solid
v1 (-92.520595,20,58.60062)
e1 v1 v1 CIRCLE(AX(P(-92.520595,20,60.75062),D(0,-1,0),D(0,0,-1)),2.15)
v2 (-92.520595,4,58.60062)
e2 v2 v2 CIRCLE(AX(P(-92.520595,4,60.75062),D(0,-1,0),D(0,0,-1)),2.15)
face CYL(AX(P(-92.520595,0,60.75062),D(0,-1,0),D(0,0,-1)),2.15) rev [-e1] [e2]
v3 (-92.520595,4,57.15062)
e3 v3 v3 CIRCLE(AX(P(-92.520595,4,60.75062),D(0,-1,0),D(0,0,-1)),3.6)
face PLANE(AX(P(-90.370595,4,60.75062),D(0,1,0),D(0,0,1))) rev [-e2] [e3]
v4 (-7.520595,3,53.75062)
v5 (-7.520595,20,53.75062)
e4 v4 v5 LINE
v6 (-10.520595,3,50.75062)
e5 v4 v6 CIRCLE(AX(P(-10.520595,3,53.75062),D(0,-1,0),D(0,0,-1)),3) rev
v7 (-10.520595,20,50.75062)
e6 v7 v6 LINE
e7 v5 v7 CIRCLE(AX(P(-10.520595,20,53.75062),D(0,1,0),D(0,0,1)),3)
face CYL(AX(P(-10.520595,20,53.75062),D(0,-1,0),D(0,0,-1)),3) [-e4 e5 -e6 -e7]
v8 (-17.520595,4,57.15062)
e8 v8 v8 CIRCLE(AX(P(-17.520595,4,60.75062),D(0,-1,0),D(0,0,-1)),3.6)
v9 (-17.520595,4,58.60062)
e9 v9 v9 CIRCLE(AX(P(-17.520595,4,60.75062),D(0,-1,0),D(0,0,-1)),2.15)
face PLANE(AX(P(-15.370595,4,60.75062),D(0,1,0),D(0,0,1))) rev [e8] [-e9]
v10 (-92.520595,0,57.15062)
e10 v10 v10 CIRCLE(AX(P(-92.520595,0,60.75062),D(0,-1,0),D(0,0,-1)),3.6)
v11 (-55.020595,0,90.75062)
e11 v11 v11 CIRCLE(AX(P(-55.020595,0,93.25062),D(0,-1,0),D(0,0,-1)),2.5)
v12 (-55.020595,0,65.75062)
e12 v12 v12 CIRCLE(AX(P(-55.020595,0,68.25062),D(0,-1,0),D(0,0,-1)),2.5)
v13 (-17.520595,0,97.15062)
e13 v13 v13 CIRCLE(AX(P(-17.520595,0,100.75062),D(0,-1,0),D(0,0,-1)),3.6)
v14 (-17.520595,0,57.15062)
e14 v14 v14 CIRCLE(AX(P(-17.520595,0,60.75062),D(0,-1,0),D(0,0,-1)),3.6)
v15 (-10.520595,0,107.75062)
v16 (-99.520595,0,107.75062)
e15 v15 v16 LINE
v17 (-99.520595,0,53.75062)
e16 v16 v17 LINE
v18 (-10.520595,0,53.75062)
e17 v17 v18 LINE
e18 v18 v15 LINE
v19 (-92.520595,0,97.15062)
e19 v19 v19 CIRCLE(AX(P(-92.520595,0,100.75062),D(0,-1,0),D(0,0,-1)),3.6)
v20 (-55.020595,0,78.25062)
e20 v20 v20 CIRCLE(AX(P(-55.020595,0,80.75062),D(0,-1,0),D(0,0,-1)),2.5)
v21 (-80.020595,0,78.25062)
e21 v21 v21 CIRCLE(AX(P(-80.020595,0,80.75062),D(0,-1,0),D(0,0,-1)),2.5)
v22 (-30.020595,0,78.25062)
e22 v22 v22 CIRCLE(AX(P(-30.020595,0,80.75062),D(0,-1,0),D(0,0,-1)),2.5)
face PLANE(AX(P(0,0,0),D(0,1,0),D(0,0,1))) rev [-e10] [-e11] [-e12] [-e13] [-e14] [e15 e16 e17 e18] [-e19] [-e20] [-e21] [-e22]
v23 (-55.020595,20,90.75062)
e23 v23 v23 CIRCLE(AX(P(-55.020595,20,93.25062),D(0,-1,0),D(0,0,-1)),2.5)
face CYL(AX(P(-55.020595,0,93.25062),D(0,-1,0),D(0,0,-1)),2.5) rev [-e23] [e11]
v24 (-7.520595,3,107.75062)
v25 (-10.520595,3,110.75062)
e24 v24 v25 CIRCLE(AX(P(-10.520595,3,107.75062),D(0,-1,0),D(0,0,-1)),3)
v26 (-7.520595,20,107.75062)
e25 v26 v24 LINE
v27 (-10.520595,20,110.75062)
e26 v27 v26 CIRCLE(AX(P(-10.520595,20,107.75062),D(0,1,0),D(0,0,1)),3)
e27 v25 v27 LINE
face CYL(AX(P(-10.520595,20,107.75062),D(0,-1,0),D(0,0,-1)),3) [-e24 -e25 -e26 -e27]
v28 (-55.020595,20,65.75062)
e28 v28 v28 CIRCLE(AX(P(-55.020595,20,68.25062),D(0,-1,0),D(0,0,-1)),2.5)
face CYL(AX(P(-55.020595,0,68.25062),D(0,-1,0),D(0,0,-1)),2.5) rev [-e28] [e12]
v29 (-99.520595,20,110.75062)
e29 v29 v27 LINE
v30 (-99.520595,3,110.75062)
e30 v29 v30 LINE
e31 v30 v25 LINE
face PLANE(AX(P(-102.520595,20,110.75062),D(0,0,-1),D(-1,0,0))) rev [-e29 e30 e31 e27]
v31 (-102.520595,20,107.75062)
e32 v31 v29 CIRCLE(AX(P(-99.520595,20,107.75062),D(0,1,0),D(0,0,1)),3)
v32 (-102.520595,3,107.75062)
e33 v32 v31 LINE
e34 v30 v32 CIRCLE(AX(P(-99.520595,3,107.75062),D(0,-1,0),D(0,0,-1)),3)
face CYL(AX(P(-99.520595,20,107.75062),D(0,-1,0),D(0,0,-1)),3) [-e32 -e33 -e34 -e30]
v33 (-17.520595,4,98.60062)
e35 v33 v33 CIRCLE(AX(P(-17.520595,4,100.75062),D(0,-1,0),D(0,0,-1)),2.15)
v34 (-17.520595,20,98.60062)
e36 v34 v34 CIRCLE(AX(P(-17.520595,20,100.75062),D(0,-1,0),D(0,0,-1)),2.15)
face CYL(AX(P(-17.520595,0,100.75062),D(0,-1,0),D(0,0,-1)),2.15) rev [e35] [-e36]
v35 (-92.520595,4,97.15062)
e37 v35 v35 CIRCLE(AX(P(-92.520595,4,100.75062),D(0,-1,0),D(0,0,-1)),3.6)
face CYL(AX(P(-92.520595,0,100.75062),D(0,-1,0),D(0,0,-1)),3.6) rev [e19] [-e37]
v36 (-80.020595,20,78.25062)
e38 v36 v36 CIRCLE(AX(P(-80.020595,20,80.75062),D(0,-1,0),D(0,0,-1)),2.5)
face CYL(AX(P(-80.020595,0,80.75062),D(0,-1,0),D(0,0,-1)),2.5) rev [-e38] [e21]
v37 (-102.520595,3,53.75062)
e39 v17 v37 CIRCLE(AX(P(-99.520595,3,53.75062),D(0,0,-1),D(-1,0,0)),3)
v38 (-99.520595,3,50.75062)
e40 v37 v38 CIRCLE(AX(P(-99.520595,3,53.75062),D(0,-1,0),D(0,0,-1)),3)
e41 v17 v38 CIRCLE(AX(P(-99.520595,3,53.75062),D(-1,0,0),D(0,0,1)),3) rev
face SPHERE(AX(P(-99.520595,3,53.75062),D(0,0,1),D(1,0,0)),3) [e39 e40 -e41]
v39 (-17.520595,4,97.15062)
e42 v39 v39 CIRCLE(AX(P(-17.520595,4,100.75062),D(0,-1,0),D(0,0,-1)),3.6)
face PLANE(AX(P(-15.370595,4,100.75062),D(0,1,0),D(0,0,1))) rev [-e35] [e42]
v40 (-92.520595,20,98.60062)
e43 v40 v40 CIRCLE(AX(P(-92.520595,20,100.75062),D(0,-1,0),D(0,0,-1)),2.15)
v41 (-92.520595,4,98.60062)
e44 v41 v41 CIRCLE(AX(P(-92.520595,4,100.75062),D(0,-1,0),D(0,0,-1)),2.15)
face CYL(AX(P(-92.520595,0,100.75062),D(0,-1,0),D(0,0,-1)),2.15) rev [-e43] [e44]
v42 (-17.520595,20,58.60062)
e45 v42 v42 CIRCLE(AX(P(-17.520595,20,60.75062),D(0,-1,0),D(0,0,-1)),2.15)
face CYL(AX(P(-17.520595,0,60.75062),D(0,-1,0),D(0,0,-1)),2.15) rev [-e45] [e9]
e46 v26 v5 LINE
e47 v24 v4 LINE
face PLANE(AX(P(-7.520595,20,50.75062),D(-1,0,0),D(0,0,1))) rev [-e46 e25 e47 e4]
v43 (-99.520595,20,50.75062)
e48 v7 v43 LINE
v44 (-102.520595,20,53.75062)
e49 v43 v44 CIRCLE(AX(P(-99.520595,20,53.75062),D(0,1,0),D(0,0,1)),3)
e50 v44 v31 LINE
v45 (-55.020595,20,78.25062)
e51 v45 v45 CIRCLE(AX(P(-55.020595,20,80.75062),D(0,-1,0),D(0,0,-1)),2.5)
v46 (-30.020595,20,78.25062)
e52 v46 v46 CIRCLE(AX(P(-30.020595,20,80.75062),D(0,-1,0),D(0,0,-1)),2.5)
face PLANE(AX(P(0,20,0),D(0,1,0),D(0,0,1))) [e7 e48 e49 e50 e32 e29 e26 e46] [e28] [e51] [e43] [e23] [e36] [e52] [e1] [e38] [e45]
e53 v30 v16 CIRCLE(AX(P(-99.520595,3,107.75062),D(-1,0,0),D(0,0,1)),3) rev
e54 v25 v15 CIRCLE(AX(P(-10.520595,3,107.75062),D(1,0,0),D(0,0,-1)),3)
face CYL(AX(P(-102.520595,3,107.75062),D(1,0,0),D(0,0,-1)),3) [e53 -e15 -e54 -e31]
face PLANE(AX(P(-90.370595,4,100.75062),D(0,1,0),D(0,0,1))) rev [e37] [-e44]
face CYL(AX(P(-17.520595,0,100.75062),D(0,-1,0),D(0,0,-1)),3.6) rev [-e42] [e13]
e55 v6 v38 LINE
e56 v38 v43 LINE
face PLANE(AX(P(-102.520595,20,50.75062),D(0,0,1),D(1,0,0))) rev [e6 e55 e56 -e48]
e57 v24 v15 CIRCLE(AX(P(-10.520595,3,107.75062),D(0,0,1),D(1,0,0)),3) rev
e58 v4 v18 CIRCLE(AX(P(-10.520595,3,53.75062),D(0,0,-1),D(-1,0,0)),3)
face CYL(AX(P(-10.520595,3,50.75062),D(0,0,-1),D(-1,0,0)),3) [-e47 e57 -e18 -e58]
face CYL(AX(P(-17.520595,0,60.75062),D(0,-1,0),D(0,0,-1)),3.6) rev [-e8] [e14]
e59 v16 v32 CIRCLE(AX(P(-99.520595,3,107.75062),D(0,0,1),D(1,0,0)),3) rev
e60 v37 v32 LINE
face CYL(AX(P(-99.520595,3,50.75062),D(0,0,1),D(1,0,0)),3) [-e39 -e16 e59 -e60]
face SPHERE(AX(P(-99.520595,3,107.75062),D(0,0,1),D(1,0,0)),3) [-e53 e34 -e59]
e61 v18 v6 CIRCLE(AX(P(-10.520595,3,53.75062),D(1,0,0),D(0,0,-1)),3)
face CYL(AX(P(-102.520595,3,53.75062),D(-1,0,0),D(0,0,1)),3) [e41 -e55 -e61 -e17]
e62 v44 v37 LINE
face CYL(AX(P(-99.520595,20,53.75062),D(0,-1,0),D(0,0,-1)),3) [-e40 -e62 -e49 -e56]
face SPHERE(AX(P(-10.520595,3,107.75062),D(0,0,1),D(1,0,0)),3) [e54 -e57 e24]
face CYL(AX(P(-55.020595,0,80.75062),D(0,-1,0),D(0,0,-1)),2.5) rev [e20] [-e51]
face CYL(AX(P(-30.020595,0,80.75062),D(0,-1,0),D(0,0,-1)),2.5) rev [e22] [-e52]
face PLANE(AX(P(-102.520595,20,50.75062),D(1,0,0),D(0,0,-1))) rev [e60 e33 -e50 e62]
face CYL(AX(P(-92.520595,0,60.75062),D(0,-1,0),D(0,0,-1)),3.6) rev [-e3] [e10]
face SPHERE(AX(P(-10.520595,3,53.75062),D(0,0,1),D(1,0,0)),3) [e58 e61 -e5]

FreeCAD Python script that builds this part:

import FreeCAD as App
import Part
import Sketcher
Q = App.Units.Quantity


def edges_at(feature, points):
    """Names of the edges that pass closest to the given points."""
    edges = feature.Shape.Edges
    near = lambda p: min(range(len(edges)), key=lambda i: edges[i].distToShape(Part.Vertex(*p))[0])
    return sorted({f"Edge{near(p) + 1}" for p in points})

doc = App.newDocument("Part")
body = doc.addObject("PartDesign::Body", "Body")

sketch1 = body.newObject("Sketcher::SketchObject", "Sketch")
sketch1.AttachmentSupport = (doc.getObject("XZ_Plane"), [""])
sketch1.MapMode = "FlatFace"
sketch1.addGeometry([
    Part.LineSegment(App.Vector(-102.520595, 50.75062, 0), App.Vector(-102.520595, 110.75062, 0)),
    Part.LineSegment(App.Vector(-102.520595, 110.75062, 0), App.Vector(-7.520595, 110.75062, 0)),
    Part.LineSegment(App.Vector(-7.520595, 110.75062, 0), App.Vector(-7.520595, 50.75062, 0)),
    Part.LineSegment(App.Vector(-7.520595, 50.75062, 0), App.Vector(-102.520595, 50.75062, 0)),
], False)
sketch1.addConstraint([
    Sketcher.Constraint("Coincident", 0, 2, 1, 1),
    Sketcher.Constraint("Coincident", 1, 2, 2, 1),
    Sketcher.Constraint("Coincident", 2, 2, 3, 1),
    Sketcher.Constraint("Coincident", 3, 2, 0, 1),
    Sketcher.Constraint("Vertical", 0),
    Sketcher.Constraint("Horizontal", 1),
    Sketcher.Constraint("Vertical", 2),
    Sketcher.Constraint("Horizontal", 3),
    Sketcher.Constraint("DistanceX", 1, 1, 1, 2, Q("95 mm")),
    Sketcher.Constraint("DistanceY", 0, 1, 0, 2, Q("60 mm")),
    Sketcher.Constraint("DistanceY", -1, 1, 0, 2, Q("110.75062 mm")),
    Sketcher.Constraint("DistanceX", 0, 2, -1, 1, Q("102.520595 mm")),
])
pad1 = body.newObject("PartDesign::Pad", "Pad")
pad1.Profile = sketch1
pad1.Length = 20
pad1.Reversed = True

sketch2 = body.newObject("Sketcher::SketchObject", "Sketch001")
sketch2.AttachmentSupport = (doc.getObject("XZ_Plane"), [""])
sketch2.MapMode = "FlatFace"
sketch2.addGeometry([
    Part.Circle(App.Vector(-17.520595, 60.75062, 0), App.Vector(0, 0, 1), 2.15),
    Part.Circle(App.Vector(-92.520595, 60.75062, 0), App.Vector(0, 0, 1), 2.15),
    Part.Circle(App.Vector(-92.520595, 100.75062, 0), App.Vector(0, 0, 1), 2.15),
    Part.Circle(App.Vector(-17.520595, 100.75062, 0), App.Vector(0, 0, 1), 2.15),
], False)
sketch2.addConstraint([
    Sketcher.Constraint("Equal", 0, 1),
    Sketcher.Constraint("Equal", 1, 2),
    Sketcher.Constraint("Equal", 2, 3),
    Sketcher.Constraint("Horizontal", 0, 3, 1, 3),
    Sketcher.Constraint("Horizontal", 2, 3, 3, 3),
    Sketcher.Constraint("Vertical", 1, 3, 2, 3),
    Sketcher.Constraint("Vertical", 0, 3, 3, 3),
    Sketcher.Constraint("Diameter", 0, Q("4.3 mm")),
    Sketcher.Constraint("DistanceX", 1, 3, 0, 3, Q("75 mm")),
    Sketcher.Constraint("DistanceY", 1, 3, 2, 3, Q("40 mm")),
    Sketcher.Constraint("DistanceY", -1, 1, 0, 3, Q("60.75062 mm")),
    Sketcher.Constraint("DistanceX", 0, 3, -1, 1, Q("17.520595 mm")),
])
doc.recompute()
hole = body.newObject("PartDesign::Hole", "Hole")
hole.Profile = sketch2
hole.ThreadType = "None"
hole.Diameter = 4.3
hole.DepthType = "ThroughAll"
hole.HoleCutType = "Counterbore"
hole.HoleCutDiameter = 7.2
hole.HoleCutDepth = 4

sketch3 = body.newObject("Sketcher::SketchObject", "Sketch002")
sketch3.AttachmentSupport = (doc.getObject("XZ_Plane"), [""])
sketch3.MapMode = "FlatFace"
sketch3.addGeometry([
    Part.Circle(App.Vector(-30.020595, 80.75062, 0), App.Vector(0, 0, 1), 2.5),
    Part.Circle(App.Vector(-55.020595, 80.75062, 0), App.Vector(0, 0, 1), 2.5),
    Part.Circle(App.Vector(-80.020595, 80.75062, 0), App.Vector(0, 0, 1), 2.5),
    Part.Circle(App.Vector(-55.020595, 68.25062, 0), App.Vector(0, 0, 1), 2.5),
    Part.Circle(App.Vector(-55.020595, 93.25062, 0), App.Vector(0, 0, 1), 2.5),
], False)
sketch3.addConstraint([
    Sketcher.Constraint("Equal", 0, 1),
    Sketcher.Constraint("Equal", 1, 2),
    Sketcher.Constraint("Equal", 2, 3),
    Sketcher.Constraint("Equal", 3, 4),
    Sketcher.Constraint("Horizontal", 0, 3, 1, 3),
    Sketcher.Constraint("Horizontal", 1, 3, 2, 3),
    Sketcher.Constraint("Vertical", 1, 3, 3, 3),
    Sketcher.Constraint("Vertical", 3, 3, 4, 3),
    Sketcher.Constraint("Diameter", 0, Q("5 mm")),
    Sketcher.Constraint("DistanceX", 1, 3, 0, 3, Q("25 mm")),
    Sketcher.Constraint("DistanceX", 2, 3, 1, 3, Q("25 mm")),
    Sketcher.Constraint("DistanceY", 3, 3, 4, 3, Q("25 mm")),
    Sketcher.Constraint("DistanceY", 3, 3, 1, 3, Q("12.5 mm")),
    Sketcher.Constraint("DistanceY", -1, 1, 0, 3, Q("80.75062 mm")),
    Sketcher.Constraint("DistanceX", 0, 3, -1, 1, Q("30.020595 mm")),
])
doc.recompute()
hole2 = body.newObject("PartDesign::Hole", "Hole001")
hole2.Profile = sketch3
hole2.ThreadType = "None"
hole2.Diameter = 5
hole2.DepthType = "ThroughAll"
doc.recompute()

fillet = body.newObject("PartDesign::Fillet", "Fillet")
fillet.Base = (hole2, edges_at(hole2, [
    (-55.021, 0, 50.751),
    (-7.521, 0, 80.751),
    (-55.021, 0, 110.751),
    (-102.521, 0, 80.751),
    (-102.521, 10, 50.751),
    (-7.521, 10, 50.751),
    (-7.521, 10, 110.751),
    (-102.521, 10, 110.751),
]))
fillet.Radius = 3

doc.recompute()
